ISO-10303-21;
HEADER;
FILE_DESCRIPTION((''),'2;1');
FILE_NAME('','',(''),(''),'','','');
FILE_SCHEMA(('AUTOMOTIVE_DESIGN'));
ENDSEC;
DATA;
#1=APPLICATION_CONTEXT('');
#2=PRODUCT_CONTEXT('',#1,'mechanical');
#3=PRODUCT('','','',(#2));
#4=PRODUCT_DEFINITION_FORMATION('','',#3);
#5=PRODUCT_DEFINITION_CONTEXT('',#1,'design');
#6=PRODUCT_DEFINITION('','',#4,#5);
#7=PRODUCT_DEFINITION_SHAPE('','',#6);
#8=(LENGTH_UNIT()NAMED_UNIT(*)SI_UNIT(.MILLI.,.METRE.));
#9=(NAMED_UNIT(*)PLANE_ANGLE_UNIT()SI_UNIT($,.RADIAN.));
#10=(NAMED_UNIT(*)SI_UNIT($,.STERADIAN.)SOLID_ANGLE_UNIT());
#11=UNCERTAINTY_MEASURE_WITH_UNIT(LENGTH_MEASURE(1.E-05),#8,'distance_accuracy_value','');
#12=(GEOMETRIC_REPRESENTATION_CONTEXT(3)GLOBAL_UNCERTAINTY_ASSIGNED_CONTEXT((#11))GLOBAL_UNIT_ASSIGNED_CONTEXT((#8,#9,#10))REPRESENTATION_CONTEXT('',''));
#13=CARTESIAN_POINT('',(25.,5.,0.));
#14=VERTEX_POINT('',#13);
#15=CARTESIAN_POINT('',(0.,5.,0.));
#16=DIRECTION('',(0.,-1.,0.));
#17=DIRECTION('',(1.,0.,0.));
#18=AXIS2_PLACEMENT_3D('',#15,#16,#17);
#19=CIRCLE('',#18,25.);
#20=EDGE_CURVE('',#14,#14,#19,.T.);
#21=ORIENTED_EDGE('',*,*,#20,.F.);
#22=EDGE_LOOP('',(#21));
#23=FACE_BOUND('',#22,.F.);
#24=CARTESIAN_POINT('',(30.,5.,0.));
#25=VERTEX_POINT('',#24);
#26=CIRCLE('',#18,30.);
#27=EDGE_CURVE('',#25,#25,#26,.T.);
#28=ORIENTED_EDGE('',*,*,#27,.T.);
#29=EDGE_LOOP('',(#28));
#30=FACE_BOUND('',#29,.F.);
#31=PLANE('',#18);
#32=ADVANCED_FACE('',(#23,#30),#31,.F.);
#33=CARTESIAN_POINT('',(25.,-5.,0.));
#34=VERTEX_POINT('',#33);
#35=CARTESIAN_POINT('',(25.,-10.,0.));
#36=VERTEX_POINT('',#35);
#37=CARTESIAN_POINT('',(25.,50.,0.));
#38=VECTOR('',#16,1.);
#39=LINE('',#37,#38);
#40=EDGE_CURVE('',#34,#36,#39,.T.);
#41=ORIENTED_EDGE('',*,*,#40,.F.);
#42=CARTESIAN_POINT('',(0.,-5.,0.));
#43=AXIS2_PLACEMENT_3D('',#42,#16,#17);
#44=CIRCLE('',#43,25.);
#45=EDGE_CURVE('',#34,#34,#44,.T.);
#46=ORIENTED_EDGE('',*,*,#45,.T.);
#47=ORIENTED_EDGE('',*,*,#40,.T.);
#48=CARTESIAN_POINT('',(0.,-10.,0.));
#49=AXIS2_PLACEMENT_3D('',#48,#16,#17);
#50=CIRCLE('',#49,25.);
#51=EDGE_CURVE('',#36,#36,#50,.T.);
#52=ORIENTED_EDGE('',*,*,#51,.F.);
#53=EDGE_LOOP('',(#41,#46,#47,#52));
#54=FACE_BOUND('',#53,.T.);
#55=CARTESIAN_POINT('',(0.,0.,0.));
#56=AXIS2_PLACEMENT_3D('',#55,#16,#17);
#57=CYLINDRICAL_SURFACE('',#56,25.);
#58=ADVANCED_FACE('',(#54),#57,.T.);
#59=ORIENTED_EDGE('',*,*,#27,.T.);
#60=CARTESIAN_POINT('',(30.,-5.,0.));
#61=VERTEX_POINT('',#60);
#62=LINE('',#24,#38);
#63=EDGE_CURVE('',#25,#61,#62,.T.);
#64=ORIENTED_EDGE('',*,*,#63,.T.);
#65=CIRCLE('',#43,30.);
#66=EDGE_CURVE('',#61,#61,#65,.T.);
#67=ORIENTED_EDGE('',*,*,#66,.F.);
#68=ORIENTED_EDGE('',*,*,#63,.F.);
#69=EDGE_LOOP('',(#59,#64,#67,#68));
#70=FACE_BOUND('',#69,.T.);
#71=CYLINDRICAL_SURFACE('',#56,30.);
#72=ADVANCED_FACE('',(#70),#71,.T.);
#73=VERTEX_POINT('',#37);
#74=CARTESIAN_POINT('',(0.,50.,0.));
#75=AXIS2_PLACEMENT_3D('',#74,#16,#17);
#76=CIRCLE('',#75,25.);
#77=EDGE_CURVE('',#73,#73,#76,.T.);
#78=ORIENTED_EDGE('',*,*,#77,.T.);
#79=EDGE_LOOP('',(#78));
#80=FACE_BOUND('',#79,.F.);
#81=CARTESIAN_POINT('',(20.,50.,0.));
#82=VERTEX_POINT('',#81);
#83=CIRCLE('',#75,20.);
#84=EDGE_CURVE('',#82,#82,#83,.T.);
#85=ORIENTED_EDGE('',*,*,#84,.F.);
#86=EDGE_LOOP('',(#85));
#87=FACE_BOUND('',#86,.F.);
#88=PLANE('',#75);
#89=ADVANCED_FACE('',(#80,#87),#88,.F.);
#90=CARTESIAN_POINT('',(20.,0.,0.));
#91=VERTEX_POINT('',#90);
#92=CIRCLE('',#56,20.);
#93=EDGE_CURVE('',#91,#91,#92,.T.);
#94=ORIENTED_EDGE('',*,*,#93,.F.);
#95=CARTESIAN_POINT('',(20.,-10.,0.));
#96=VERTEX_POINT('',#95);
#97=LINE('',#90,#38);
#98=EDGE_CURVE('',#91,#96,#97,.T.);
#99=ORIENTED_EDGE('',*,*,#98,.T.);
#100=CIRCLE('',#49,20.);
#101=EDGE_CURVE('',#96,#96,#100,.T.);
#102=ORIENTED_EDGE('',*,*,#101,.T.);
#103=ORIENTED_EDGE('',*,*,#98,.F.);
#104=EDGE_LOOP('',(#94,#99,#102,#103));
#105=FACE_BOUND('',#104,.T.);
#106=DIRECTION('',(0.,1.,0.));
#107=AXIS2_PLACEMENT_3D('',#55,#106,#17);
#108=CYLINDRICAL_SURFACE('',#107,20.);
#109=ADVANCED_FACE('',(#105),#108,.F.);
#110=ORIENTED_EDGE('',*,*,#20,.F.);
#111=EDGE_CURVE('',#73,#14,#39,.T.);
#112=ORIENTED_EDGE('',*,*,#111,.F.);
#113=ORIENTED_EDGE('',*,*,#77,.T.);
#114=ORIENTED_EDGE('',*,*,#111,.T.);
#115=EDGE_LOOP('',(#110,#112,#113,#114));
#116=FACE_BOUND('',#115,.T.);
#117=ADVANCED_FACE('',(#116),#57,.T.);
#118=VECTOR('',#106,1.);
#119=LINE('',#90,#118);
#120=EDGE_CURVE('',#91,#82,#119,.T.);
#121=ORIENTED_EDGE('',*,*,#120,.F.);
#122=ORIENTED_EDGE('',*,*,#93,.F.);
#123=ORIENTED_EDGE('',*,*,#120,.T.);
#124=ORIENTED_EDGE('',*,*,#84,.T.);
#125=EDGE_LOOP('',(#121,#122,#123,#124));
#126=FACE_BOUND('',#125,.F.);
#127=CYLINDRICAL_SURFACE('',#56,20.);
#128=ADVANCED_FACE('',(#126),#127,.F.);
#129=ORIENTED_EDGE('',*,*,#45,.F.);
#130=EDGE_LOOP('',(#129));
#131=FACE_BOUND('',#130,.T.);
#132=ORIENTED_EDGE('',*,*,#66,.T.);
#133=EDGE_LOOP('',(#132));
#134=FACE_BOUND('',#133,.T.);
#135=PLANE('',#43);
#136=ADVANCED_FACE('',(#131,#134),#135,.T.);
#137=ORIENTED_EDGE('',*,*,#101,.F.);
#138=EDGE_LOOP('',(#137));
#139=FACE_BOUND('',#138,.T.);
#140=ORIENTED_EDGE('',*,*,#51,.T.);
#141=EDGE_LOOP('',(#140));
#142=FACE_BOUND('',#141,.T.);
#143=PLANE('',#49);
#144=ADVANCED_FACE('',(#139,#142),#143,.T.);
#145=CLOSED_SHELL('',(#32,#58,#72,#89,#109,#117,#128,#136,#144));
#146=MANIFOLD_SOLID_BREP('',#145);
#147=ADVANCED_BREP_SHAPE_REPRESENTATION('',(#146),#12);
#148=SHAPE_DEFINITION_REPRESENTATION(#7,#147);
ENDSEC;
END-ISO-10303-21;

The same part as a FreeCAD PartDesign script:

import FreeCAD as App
import Part
import Sketcher
from FreeCAD import Vector

doc = App.newDocument("Part")
params = doc.addObject("Spreadsheet::Sheet", "Params")
for row, (alias, value) in enumerate([
    ("sketch1_diameter", "50 mm"),
    ("sketch1_diameter2", "40 mm"),
    ("pad1_length", "10 mm"),
    ("pad1_length2", "50 mm"),
    ("sketch2_diameter", "60 mm"),
    ("sketch2_diameter2", "50 mm"),
    ("pad2_length", "10 mm"),
], start=1):
    params.set(f"A{row}", alias)
    params.set(f"B{row}", "=" + value)
    params.setAlias(f"B{row}", alias)

body = doc.addObject("PartDesign::Body", "Body")

# Sketch on XZ plane
sketch1 = body.newObject("Sketcher::SketchObject", "Sketch")
sketch1.AttachmentSupport = (doc.getObject("XZ_Plane"), [""])
sketch1.MapMode = "FlatFace"
sketch1.addGeometry(Part.Circle(Vector(0, 0, 0), Vector(0, 0, 1), 25), False)
sketch1.addGeometry(Part.Circle(Vector(0, 0, 0), Vector(0, 0, 1), 20), False)
sketch1.addConstraint(Sketcher.Constraint("Coincident", 0, 3, -1, 1))
sketch1.addConstraint(Sketcher.Constraint("Coincident", 1, 3, -1, 1))
sketch1.addConstraint(Sketcher.Constraint("Diameter", 0, 50.0))
sketch1.addConstraint(Sketcher.Constraint("Diameter", 1, 40.0))
sketch1.setExpression("Constraints[2]", "Params.sketch1_diameter")
sketch1.setExpression("Constraints[3]", "Params.sketch1_diameter2")
pad1 = body.newObject("PartDesign::Pad", "Pad")
pad1.Profile = sketch1
pad1.Type = "TwoLengths"
pad1.setExpression("Length", "Params.pad1_length")
pad1.setExpression("Length2", "Params.pad1_length2")

# Sketch on XZ plane
sketch2 = body.newObject("Sketcher::SketchObject", "Sketch001")
sketch2.AttachmentSupport = (doc.getObject("XZ_Plane"), [""])
sketch2.MapMode = "FlatFace"
sketch2.addGeometry(Part.Circle(Vector(0, 0, 0), Vector(0, 0, 1), 30), False)
sketch2.addGeometry(Part.Circle(Vector(0, 0, 0), Vector(0, 0, 1), 25), False)
sketch2.addConstraint(Sketcher.Constraint("Coincident", 0, 3, -1, 1))
sketch2.addConstraint(Sketcher.Constraint("Coincident", 1, 3, -1, 1))
sketch2.addConstraint(Sketcher.Constraint("Diameter", 0, 60.0))
sketch2.addConstraint(Sketcher.Constraint("Diameter", 1, 50.0))
sketch2.setExpression("Constraints[2]", "Params.sketch2_diameter")
sketch2.setExpression("Constraints[3]", "Params.sketch2_diameter2")
pad2 = body.newObject("PartDesign::Pad", "Pad001")
pad2.Profile = sketch2
pad2.setExpression("Length", "Params.pad2_length")
pad2.Midplane = True

doc.recompute()
